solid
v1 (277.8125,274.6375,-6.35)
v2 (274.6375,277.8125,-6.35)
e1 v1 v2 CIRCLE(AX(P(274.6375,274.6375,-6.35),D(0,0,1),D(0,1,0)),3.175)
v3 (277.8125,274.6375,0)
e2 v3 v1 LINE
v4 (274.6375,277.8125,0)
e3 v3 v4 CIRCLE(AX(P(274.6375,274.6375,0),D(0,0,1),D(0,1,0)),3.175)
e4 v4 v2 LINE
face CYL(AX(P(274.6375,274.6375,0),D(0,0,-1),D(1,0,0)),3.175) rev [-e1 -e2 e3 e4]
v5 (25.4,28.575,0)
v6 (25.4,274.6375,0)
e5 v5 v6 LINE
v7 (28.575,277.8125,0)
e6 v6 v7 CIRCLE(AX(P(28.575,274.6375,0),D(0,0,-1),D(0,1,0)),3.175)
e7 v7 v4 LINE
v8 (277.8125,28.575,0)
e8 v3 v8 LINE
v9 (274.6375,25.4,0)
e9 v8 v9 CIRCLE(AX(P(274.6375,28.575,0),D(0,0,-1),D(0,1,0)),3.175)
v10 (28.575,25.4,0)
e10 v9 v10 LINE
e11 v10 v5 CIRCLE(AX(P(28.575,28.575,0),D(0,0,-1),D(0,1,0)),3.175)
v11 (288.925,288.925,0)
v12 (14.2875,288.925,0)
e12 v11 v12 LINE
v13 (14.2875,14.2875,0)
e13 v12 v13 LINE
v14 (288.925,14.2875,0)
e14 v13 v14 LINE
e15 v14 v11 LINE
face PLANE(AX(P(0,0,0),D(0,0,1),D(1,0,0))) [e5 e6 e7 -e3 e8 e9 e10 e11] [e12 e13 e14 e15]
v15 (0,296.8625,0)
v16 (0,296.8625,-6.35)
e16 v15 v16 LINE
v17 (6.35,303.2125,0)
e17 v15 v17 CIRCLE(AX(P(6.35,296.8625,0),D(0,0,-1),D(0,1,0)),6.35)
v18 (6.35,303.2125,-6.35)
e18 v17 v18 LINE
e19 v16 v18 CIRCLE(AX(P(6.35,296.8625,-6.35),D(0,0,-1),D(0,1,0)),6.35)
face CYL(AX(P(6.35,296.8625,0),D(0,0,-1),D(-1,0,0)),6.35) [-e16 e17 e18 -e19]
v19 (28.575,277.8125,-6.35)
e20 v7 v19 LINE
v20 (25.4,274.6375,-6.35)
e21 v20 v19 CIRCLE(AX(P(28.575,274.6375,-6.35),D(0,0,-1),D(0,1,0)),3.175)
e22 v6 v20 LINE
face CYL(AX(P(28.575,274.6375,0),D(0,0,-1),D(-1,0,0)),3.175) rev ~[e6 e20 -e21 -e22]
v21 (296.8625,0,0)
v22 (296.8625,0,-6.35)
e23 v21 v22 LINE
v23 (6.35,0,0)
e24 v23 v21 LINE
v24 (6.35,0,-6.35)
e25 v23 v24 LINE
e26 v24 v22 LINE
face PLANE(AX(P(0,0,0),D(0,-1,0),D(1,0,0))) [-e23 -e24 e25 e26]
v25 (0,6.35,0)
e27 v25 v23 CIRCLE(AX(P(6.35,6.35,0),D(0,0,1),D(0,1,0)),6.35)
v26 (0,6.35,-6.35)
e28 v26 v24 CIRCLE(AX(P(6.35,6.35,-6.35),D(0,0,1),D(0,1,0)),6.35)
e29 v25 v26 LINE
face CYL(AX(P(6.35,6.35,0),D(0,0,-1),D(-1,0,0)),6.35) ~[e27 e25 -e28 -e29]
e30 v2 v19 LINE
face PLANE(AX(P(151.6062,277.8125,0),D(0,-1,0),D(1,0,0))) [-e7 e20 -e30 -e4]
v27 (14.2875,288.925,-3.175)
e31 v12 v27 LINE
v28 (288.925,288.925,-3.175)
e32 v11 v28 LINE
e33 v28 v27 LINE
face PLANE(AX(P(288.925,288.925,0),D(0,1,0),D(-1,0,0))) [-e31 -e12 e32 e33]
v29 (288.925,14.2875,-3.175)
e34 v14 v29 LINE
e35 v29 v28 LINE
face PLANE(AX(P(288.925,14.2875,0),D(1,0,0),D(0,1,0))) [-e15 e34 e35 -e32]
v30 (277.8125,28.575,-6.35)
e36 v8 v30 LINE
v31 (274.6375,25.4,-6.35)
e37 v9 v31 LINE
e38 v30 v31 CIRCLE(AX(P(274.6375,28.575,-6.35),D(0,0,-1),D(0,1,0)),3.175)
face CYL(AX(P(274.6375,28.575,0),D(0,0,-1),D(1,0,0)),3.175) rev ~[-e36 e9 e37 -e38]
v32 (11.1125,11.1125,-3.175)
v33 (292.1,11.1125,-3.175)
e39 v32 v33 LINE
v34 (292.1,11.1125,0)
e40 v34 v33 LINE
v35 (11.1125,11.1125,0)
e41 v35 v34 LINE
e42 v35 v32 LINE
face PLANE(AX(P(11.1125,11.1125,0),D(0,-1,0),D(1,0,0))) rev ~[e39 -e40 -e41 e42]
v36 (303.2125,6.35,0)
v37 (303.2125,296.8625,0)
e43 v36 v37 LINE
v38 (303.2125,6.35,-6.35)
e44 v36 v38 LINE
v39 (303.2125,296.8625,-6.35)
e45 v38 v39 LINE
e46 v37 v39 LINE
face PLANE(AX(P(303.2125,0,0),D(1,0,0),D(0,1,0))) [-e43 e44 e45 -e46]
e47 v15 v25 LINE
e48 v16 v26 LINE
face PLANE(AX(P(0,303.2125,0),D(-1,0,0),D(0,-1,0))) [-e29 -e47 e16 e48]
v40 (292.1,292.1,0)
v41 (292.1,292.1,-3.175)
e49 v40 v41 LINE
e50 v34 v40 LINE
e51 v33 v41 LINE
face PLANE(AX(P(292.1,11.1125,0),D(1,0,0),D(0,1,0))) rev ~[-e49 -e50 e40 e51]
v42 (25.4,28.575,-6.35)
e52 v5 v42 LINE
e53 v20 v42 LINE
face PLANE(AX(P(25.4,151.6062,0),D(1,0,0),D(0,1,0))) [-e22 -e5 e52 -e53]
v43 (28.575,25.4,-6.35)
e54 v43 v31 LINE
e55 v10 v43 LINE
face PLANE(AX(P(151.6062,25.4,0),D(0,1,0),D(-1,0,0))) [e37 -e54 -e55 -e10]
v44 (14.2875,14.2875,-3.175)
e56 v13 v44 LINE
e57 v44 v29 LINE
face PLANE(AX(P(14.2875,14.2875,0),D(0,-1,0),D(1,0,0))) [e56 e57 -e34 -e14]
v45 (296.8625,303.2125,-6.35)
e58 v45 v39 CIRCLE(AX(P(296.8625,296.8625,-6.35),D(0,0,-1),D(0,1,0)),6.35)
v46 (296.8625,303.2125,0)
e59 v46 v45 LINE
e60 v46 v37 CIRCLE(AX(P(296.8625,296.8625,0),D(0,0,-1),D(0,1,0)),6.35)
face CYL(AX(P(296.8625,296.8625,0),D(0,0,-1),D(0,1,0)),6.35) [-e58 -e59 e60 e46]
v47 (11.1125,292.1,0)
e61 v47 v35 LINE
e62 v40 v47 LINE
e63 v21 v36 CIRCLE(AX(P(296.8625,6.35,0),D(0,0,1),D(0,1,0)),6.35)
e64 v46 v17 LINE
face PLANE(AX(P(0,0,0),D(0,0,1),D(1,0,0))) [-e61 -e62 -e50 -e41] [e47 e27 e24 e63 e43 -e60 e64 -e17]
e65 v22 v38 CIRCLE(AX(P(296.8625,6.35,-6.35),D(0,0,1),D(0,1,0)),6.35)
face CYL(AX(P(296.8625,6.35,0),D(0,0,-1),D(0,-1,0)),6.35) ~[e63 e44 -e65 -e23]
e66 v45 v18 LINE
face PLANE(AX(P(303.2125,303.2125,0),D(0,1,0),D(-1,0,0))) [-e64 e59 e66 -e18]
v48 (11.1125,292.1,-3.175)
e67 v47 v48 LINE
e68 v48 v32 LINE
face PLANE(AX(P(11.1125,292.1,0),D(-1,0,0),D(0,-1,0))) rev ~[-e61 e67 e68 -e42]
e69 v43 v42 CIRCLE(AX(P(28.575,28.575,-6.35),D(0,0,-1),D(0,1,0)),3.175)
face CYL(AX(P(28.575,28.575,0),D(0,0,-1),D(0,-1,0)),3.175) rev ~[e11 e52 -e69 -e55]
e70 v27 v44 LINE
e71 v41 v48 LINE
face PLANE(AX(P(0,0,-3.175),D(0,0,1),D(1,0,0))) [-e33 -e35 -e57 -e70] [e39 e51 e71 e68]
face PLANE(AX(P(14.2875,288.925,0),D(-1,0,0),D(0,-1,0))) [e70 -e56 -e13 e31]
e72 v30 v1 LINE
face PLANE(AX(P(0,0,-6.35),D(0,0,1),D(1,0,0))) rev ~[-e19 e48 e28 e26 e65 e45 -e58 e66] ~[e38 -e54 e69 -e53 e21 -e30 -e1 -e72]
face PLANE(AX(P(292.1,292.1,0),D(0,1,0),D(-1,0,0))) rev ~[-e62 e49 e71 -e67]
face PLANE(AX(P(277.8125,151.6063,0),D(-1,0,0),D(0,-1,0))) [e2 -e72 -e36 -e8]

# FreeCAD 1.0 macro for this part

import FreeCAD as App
import Part
import Sketcher

V = App.Vector
Q = App.Units.Quantity


def edges_at(feature, points):
    """Names of the edges that pass closest to the given points."""
    edges = feature.Shape.Edges
    near = lambda p: min(range(len(edges)), key=lambda i: edges[i].distToShape(Part.Vertex(*p))[0])
    return sorted({f"Edge{near(p) + 1}" for p in points})


def add_polygon(sketch, points):
    """Adds a closed chain of lines whose ends are joined by coincident constraints."""
    first, n = sketch.GeometryCount, len(points)
    for a, b in zip(points, points[1:] + points[:1]):
        sketch.addGeometry(Part.LineSegment(App.Vector(*a, 0), App.Vector(*b, 0)), False)
    for i in range(n):
        sketch.addConstraint(Sketcher.Constraint("Coincident", first + i, 2, first + (i + 1) % n, 1))

doc = App.newDocument("Part")
body = doc.addObject("PartDesign::Body", "Body")

sketch1 = body.newObject("Sketcher::SketchObject", "Sketch")
sketch1.AttachmentSupport = (doc.getObject("XY_Plane"), [""])
sketch1.MapMode = "FlatFace"
add_polygon(sketch1, [(0, 303.2125), (0, 0), (303.2125, 0), (303.2125, 303.2125)])
add_polygon(sketch1, [(277.8125, 25.4), (25.4, 25.4), (25.4, 277.8125), (277.8125, 277.8125)])
sketch1.addConstraint([
    Sketcher.Constraint("Vertical", 0),
    Sketcher.Constraint("Horizontal", 1),
    Sketcher.Constraint("Vertical", 2),
    Sketcher.Constraint("Horizontal", 3),
    Sketcher.Constraint("Horizontal", 4),
    Sketcher.Constraint("Vertical", 5),
    Sketcher.Constraint("Horizontal", 6),
    Sketcher.Constraint("Vertical", 7),
    Sketcher.Constraint("Coincident", 0, 2, -1, 1),
    Sketcher.Constraint("Equal", 3, 0),
    Sketcher.Constraint("Equal", 6, 5),
    Sketcher.Constraint("DistanceX", -1, 1, 4, 2, Q("1 in")),
    Sketcher.Constraint("DistanceY", -1, 1, 4, 2, Q("1 in")),
    Sketcher.Constraint("DistanceY", 5, 2, 3, 2, Q("1 in")),
    Sketcher.Constraint("DistanceX", 1, 1, 1, 2, Q("11.9375 in")),
])
pad1 = body.newObject("PartDesign::Pad", "Pad")
pad1.Profile = sketch1
pad1.Length = Q("0.25 in")
pad1.Reversed = True

sketch2 = body.newObject("Sketcher::SketchObject", "Sketch001")
sketch2.AttachmentSupport = (doc.getObject("XY_Plane"), [""])
sketch2.MapMode = "FlatFace"
add_polygon(sketch2, [(292.1, 11.1125), (292.1, 292.1), (11.1125, 292.1), (11.1125, 11.1125)])
add_polygon(sketch2, [(14.2875, 288.925), (288.925, 288.925), (288.925, 14.2875), (14.2875, 14.2875)])
sketch2.addConstraint([
    Sketcher.Constraint("Vertical", 0),
    Sketcher.Constraint("Horizontal", 1),
    Sketcher.Constraint("Vertical", 2),
    Sketcher.Constraint("Horizontal", 3),
    Sketcher.Constraint("Horizontal", 4),
    Sketcher.Constraint("Vertical", 5),
    Sketcher.Constraint("Horizontal", 6),
    Sketcher.Constraint("Vertical", 7),
    Sketcher.Constraint("Equal", 3, 0),
    Sketcher.Constraint("Equal", 6, 5),
    Sketcher.Constraint("DistanceX", -1, 1, 1, 2, Q("0.4375 in")),
    Sketcher.Constraint("DistanceY", -1, 1, 2, 2, Q("0.4375 in")),
    Sketcher.Constraint("DistanceX", 4, 2, 0, 2, Q("0.125 in")),
    Sketcher.Constraint("DistanceY", 4, 2, 0, 2, Q("0.125 in")),
    Sketcher.Constraint("DistanceY", 3, 2, 5, 2, Q("0.125 in")),
    Sketcher.Constraint("DistanceX", -1, 1, 0, 2, Q("11.5 in")),
])
pocket1 = body.newObject("PartDesign::Pocket", "Pocket")
pocket1.Profile = sketch2
pocket1.Length = Q("0.125 in")
doc.recompute()

fillet = body.newObject("PartDesign::Fillet", "Fillet")
fillet.Base = (pocket1, edges_at(pocket1, [
    (0, 303.212, -3.175),
    (303.212, 303.212, -3.175),
    (0, 0, -3.175),
    (303.212, 0, -3.175),
]))
fillet.Radius = Q("0.25 in")
doc.recompute()

fillet2 = body.newObject("PartDesign::Fillet", "Fillet001")
fillet2.Base = (fillet, edges_at(fillet, [
    (277.812, 25.4, -3.175),
    (277.812, 277.812, -3.175),
    (25.4, 277.812, -3.175),
    (25.4, 25.4, -3.175),
]))
fillet2.Radius = Q("0.125 in")

doc.recompute()
